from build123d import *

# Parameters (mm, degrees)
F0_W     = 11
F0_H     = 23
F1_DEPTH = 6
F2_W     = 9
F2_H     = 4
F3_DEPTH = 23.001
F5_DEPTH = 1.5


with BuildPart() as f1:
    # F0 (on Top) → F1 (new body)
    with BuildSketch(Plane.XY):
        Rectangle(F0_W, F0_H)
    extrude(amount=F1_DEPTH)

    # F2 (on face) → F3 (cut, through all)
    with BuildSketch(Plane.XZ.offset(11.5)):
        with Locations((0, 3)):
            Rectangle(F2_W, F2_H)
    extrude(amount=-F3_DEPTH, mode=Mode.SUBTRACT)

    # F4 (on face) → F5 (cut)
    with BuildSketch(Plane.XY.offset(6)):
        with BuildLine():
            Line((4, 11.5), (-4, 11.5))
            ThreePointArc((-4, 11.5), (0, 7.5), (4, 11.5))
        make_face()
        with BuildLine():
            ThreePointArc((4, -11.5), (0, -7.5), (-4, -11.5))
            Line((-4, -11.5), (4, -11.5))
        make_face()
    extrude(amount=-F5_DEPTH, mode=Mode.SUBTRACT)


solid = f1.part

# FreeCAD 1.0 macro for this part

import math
import FreeCAD as App
import Part
import Sketcher
from FreeCAD import Vector
Q = App.Units.Quantity


def add_polygon(sketch, points):
    """Adds a closed chain of lines whose ends are joined by coincident constraints."""
    first, n = sketch.GeometryCount, len(points)
    for a, b in zip(points, points[1:] + points[:1]):
        sketch.addGeometry(Part.LineSegment(App.Vector(*a, 0), App.Vector(*b, 0)), False)
    for i in range(n):
        sketch.addConstraint(Sketcher.Constraint("Coincident", first + i, 2, first + (i + 1) % n, 1))

doc = App.newDocument("Part")
body = doc.addObject("PartDesign::Body", "Body")

sketch1 = doc.addObject("Sketcher::SketchObject", "Sketch")
body.addObject(sketch1)
sketch1.AttachmentSupport = (doc.XY_Plane, [""])
sketch1.MapMode = "FlatFace"
add_polygon(sketch1, [(-5.5, 11.5), (-5.5, -11.5), (5.5, -11.5), (5.5, 11.5)])
sketch1.addConstraint([
    Sketcher.Constraint("Vertical", 0),
    Sketcher.Constraint("Horizontal", 1),
    Sketcher.Constraint("Vertical", 2),
    Sketcher.Constraint("Horizontal", 3),
    Sketcher.Constraint("Symmetric", 0, 2, 2, 2, -1, 1),
    Sketcher.Constraint("DistanceX", 1, 1, 1, 2, Q("11 mm")),
    Sketcher.Constraint("DistanceY", 0, 2, 0, 1, Q("23 mm")),
])
pad1 = doc.addObject("PartDesign::Pad", "Pad")
body.addObject(pad1)
pad1.Profile = sketch1
pad1.Length = 6

sketch2 = doc.addObject("Sketcher::SketchObject", "Sketch001")
body.addObject(sketch2)
sketch2.AttachmentSupport = (doc.XZ_Plane, [""])
sketch2.MapMode = "FlatFace"
sketch2.AttachmentOffset = App.Placement(Vector(0, 0, 11.5), App.Rotation())
add_polygon(sketch2, [(-4.5, 5), (-4.5, 1), (4.5, 1), (4.5, 5)])
sketch2.addConstraint([
    Sketcher.Constraint("Vertical", 0),
    Sketcher.Constraint("Horizontal", 1),
    Sketcher.Constraint("Vertical", 2),
    Sketcher.Constraint("Horizontal", 3),
    Sketcher.Constraint("DistanceX", 1, 1, 1, 2, Q("9 mm")),
    Sketcher.Constraint("DistanceY", 0, 2, 0, 1, Q("4 mm")),
    Sketcher.Constraint("DistanceY", -1, 1, 0, 2, Q("1 mm")),
    Sketcher.Constraint("DistanceX", 0, 2, -1, 1, Q("4.5 mm")),
])
pocket1 = doc.addObject("PartDesign::Pocket", "Pocket")
body.addObject(pocket1)
pocket1.Profile = sketch2
pocket1.Type = "ThroughAll"

sketch3 = doc.addObject("Sketcher::SketchObject", "Sketch002")
body.addObject(sketch3)
sketch3.AttachmentSupport = (doc.XY_Plane, [""])
sketch3.MapMode = "FlatFace"
sketch3.AttachmentOffset = App.Placement(Vector(0, 0, 6), App.Rotation())
sketch3.addGeometry([
    Part.LineSegment(Vector(4, 11.5, 0), Vector(-4, 11.5, 0)),
    Part.ArcOfCircle(Part.Circle(Vector(0, 11.5, 0), Vector(0, 0, 1), 4), math.radians(180), math.radians(360)),
    Part.ArcOfCircle(Part.Circle(Vector(0, -11.5, 0), Vector(0, 0, 1), 4), math.radians(0), math.radians(180)),
    Part.LineSegment(Vector(-4, -11.5, 0), Vector(4, -11.5, 0)),
], False)
sketch3.addConstraint([
    Sketcher.Constraint("Coincident", 0, 1, 1, 2),
    Sketcher.Constraint("Coincident", 1, 1, 0, 2),
    Sketcher.Constraint("Coincident", 2, 1, 3, 2),
    Sketcher.Constraint("Coincident", 3, 1, 2, 2),
    Sketcher.Constraint("Horizontal", 0),
    Sketcher.Constraint("Horizontal", 3),
    Sketcher.Constraint("Equal", 1, 2),
    Sketcher.Constraint("Symmetric", 1, 3, 2, 3, -1, 1),
    Sketcher.Constraint("Symmetric", 0, 1, 2, 1, -1),
    Sketcher.Constraint("Horizontal", 1, 3, 0, 1),
    Sketcher.Constraint("Radius", 1, Q("4 mm")),
    Sketcher.Constraint("DistanceY", 2, 3, 1, 3, Q("23 mm")),
])
pocket2 = doc.addObject("PartDesign::Pocket", "Pocket001")
body.addObject(pocket2)
pocket2.Profile = sketch3
pocket2.Length = 1.5

doc.recompute()
